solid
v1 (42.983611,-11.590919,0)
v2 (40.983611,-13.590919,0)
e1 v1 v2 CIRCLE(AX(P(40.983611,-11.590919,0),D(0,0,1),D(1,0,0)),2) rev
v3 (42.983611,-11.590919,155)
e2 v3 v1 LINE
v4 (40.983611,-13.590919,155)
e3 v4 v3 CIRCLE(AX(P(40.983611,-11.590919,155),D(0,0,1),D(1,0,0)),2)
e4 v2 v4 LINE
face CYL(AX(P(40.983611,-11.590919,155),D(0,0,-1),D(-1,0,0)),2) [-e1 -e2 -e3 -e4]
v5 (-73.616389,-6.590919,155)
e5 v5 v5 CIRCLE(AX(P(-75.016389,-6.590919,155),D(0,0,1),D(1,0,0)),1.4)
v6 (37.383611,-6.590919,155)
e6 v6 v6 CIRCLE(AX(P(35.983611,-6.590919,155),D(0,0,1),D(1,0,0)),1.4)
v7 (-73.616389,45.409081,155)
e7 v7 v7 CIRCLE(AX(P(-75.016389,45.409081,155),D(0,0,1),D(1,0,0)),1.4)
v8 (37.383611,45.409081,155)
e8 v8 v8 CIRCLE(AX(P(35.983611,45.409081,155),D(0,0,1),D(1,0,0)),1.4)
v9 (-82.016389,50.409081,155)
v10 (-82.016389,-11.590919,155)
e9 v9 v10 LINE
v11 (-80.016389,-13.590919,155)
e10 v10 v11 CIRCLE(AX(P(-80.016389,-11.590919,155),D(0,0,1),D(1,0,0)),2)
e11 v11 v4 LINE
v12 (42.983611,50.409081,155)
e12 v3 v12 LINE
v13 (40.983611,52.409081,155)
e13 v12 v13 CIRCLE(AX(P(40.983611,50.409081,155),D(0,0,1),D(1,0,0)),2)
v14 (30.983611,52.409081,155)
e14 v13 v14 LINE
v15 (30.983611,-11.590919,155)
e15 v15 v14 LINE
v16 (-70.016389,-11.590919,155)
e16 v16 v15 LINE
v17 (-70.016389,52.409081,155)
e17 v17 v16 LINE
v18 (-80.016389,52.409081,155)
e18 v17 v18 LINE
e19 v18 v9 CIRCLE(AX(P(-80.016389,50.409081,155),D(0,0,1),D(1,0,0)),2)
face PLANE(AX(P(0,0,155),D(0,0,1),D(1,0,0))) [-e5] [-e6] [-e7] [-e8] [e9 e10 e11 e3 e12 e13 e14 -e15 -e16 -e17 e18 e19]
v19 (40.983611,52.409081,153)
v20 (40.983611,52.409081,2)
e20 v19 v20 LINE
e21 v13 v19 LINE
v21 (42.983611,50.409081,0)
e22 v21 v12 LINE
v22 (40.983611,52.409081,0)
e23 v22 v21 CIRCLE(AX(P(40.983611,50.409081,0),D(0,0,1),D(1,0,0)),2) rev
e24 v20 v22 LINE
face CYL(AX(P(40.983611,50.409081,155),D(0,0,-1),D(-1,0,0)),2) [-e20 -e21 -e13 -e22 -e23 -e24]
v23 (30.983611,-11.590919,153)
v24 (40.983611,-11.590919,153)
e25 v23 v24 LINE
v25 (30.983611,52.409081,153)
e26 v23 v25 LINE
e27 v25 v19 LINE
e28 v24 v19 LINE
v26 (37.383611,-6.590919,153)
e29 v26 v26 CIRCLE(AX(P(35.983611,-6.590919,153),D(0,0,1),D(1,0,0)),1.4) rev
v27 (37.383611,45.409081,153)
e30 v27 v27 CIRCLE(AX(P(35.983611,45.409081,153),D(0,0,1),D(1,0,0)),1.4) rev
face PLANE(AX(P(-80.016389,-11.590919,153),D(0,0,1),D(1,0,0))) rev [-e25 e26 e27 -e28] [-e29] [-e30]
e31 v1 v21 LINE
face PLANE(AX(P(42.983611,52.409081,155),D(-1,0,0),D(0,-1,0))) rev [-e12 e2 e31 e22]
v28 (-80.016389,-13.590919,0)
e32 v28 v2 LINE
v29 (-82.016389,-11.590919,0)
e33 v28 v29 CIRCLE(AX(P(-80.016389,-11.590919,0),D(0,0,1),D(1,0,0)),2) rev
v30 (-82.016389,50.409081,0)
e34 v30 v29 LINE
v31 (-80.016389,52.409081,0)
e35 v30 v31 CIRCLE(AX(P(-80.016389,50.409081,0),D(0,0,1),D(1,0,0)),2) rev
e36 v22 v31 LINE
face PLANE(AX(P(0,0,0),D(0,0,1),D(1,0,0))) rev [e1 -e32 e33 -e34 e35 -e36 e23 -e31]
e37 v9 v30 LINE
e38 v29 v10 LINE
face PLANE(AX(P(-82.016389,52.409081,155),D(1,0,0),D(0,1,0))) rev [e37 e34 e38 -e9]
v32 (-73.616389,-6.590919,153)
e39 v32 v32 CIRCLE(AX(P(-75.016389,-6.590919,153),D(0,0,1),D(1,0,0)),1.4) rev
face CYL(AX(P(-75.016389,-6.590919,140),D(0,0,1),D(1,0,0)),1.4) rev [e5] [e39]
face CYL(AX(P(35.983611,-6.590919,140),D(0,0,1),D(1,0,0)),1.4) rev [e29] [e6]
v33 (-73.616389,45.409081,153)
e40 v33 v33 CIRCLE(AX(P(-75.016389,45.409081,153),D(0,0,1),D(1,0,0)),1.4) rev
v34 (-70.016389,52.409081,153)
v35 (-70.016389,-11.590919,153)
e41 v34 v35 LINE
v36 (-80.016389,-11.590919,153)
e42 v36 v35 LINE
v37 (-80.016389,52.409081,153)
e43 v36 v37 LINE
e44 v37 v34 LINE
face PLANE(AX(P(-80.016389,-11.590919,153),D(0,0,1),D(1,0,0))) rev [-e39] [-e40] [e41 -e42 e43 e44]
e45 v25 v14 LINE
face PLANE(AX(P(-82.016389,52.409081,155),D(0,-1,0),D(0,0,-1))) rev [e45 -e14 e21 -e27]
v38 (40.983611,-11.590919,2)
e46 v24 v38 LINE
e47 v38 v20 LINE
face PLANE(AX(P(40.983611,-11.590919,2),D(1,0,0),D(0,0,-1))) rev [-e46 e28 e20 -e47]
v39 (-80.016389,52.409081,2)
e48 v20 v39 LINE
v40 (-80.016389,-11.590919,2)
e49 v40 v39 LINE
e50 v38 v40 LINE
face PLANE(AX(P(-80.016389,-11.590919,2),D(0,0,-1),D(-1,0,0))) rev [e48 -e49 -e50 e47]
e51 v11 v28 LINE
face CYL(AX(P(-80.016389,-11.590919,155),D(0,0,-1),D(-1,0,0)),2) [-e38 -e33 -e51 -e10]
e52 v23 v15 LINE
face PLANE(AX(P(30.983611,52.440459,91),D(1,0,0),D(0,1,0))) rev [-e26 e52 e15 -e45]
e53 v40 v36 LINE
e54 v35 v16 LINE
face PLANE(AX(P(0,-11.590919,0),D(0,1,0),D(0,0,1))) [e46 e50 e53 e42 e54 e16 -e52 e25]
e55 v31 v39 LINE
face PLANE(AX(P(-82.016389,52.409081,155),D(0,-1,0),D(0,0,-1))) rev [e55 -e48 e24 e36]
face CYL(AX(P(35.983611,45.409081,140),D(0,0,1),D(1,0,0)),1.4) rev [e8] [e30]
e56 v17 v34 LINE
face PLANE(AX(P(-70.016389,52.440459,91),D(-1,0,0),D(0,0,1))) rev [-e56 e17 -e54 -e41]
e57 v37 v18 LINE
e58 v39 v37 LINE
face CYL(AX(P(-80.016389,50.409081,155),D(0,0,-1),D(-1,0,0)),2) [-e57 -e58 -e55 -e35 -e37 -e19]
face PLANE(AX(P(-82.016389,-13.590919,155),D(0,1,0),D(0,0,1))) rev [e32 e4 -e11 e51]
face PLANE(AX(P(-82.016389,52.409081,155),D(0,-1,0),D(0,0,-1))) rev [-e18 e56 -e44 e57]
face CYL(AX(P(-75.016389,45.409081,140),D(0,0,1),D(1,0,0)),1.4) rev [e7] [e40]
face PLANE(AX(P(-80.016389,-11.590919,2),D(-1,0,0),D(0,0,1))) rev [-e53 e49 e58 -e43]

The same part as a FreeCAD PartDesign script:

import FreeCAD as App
import Part
import Sketcher


def edges_at(feature, points):
    """Names of the edges that pass closest to the given points."""
    edges = feature.Shape.Edges
    near = lambda p: min(range(len(edges)), key=lambda i: edges[i].distToShape(Part.Vertex(*p))[0])
    return sorted({f"Edge{near(p) + 1}" for p in points})

doc = App.newDocument("Part")
params = doc.addObject("Spreadsheet::Sheet", "Params")
for row, (alias, value) in enumerate([
    ("sketch1_width", "125 mm"),
    ("sketch1_height", "66 mm"),
    ("pad1_length", "155 mm"),
    ("fillet_radius", "2 mm"),
    ("sketch2_diameter", "2.8 mm"),
    ("pocket1_length", "15 mm"),
    ("sketch3_width", "121 mm"),
    ("sketch3_height", "151 mm"),
    ("pocket2_length", "64 mm"),
    ("sketch4_width", "101 mm"),
    ("pocket3_length", "64 mm"),
], start=1):
    params.set(f"A{row}", alias)
    params.set(f"B{row}", "=" + value)
    params.setAlias(f"B{row}", alias)

body = doc.addObject("PartDesign::Body", "Body")

sketch1 = body.newObject("Sketcher::SketchObject", "Sketch")
sketch1.AttachmentSupport = (doc.getObject("XY_Plane"), [""])
sketch1.MapMode = "FlatFace"
sketch1.addGeometry(Part.LineSegment(App.Vector(-82, 52, 0), App.Vector(-82, -14, 0)), False)
sketch1.addGeometry(Part.LineSegment(App.Vector(-82, -14, 0), App.Vector(43, -14, 0)), False)
sketch1.addGeometry(Part.LineSegment(App.Vector(43, -14, 0), App.Vector(43, 52, 0)), False)
sketch1.addGeometry(Part.LineSegment(App.Vector(43, 52, 0), App.Vector(-82, 52, 0)), False)
sketch1.addConstraint(Sketcher.Constraint("Coincident", 0, 2, 1, 1))
sketch1.addConstraint(Sketcher.Constraint("Coincident", 1, 2, 2, 1))
sketch1.addConstraint(Sketcher.Constraint("Coincident", 2, 2, 3, 1))
sketch1.addConstraint(Sketcher.Constraint("Coincident", 3, 2, 0, 1))
sketch1.addConstraint(Sketcher.Constraint("Vertical", 0))
sketch1.addConstraint(Sketcher.Constraint("Horizontal", 1))
sketch1.addConstraint(Sketcher.Constraint("Vertical", 2))
sketch1.addConstraint(Sketcher.Constraint("Horizontal", 3))
sketch1.addConstraint(Sketcher.Constraint("DistanceX", 1, 1, 1, 2, 125.0))
sketch1.addConstraint(Sketcher.Constraint("DistanceY", 0, 2, 0, 1, 66.0))
sketch1.addConstraint(Sketcher.Constraint("DistanceX", 0, 2, -1, 1, 82.016389))
sketch1.addConstraint(Sketcher.Constraint("DistanceY", 0, 2, -1, 1, 13.590919))
sketch1.setExpression("Constraints[8]", "Params.sketch1_width")
sketch1.setExpression("Constraints[9]", "Params.sketch1_height")
pad1 = body.newObject("PartDesign::Pad", "Pad")
pad1.Profile = sketch1
pad1.setExpression("Length", "Params.pad1_length")
doc.recompute()

fillet = body.newObject("PartDesign::Fillet", "Fillet")
fillet.Base = (pad1, edges_at(pad1, [
    (-82.016, 52.409, 77.5),
    (42.984, 52.409, 77.5),
    (42.984, -13.591, 77.5),
    (-82.016, -13.591, 77.5),
]))
fillet.setExpression("Radius", "Params.fillet_radius")

sketch2 = body.newObject("Sketcher::SketchObject", "Sketch001")
sketch2.AttachmentSupport = (doc.getObject("XY_Plane"), [""])
sketch2.MapMode = "FlatFace"
sketch2.AttachmentOffset = App.Placement(App.Vector(0, 0, 155), App.Rotation())
sketch2.addGeometry(Part.Circle(App.Vector(-75, 45.4, 0), App.Vector(0, 0, 1), 1.4), False)
sketch2.addGeometry(Part.Circle(App.Vector(-75, -6.6, 0), App.Vector(0, 0, 1), 1.4), False)
sketch2.addGeometry(Part.Circle(App.Vector(36, -6.6, 0), App.Vector(0, 0, 1), 1.4), False)
sketch2.addGeometry(Part.Circle(App.Vector(36, 45.4, 0), App.Vector(0, 0, 1), 1.4), False)
sketch2.addConstraint(Sketcher.Constraint("Equal", 0, 1))
sketch2.addConstraint(Sketcher.Constraint("Equal", 1, 2))
sketch2.addConstraint(Sketcher.Constraint("Equal", 2, 3))
sketch2.addConstraint(Sketcher.Constraint("Horizontal", 1, 3, 2, 3))
sketch2.addConstraint(Sketcher.Constraint("Horizontal", 0, 3, 3, 3))
sketch2.addConstraint(Sketcher.Constraint("Vertical", 0, 3, 1, 3))
sketch2.addConstraint(Sketcher.Constraint("Vertical", 2, 3, 3, 3))
sketch2.addConstraint(Sketcher.Constraint("Diameter", 0, 2.8))
sketch2.addConstraint(Sketcher.Constraint("DistanceY", 1, 3, 0, 3, 52.0))
sketch2.addConstraint(Sketcher.Constraint("DistanceX", 1, 3, 2, 3, 111.0))
sketch2.addConstraint(Sketcher.Constraint("DistanceX", 0, 3, -1, 1, 75.016389))
sketch2.addConstraint(Sketcher.Constraint("DistanceY", -1, 1, 0, 3, 45.409081))
sketch2.setExpression("Constraints[7]", "Params.sketch2_diameter")
pocket1 = body.newObject("PartDesign::Pocket", "Pocket")
pocket1.Profile = sketch2
pocket1.setExpression("Length", "Params.pocket1_length")

sketch3 = body.newObject("Sketcher::SketchObject", "Sketch002")
sketch3.AttachmentSupport = (doc.getObject("XZ_Plane"), [""])
sketch3.MapMode = "FlatFace"
sketch3.AttachmentOffset = App.Placement(App.Vector(0, 0, -52.409081), App.Rotation())
sketch3.addGeometry(Part.LineSegment(App.Vector(-80, 2, 0), App.Vector(-80, 153, 0)), False)
sketch3.addGeometry(Part.LineSegment(App.Vector(-80, 153, 0), App.Vector(41, 153, 0)), False)
sketch3.addGeometry(Part.LineSegment(App.Vector(41, 153, 0), App.Vector(41, 2, 0)), False)
sketch3.addGeometry(Part.LineSegment(App.Vector(41, 2, 0), App.Vector(-80, 2, 0)), False)
sketch3.addConstraint(Sketcher.Constraint("Coincident", 0, 2, 1, 1))
sketch3.addConstraint(Sketcher.Constraint("Coincident", 1, 2, 2, 1))
sketch3.addConstraint(Sketcher.Constraint("Coincident", 2, 2, 3, 1))
sketch3.addConstraint(Sketcher.Constraint("Coincident", 3, 2, 0, 1))
sketch3.addConstraint(Sketcher.Constraint("Vertical", 0))
sketch3.addConstraint(Sketcher.Constraint("Horizontal", 1))
sketch3.addConstraint(Sketcher.Constraint("Vertical", 2))
sketch3.addConstraint(Sketcher.Constraint("Horizontal", 3))
sketch3.addConstraint(Sketcher.Constraint("DistanceX", 1, 1, 1, 2, 121.0))
sketch3.addConstraint(Sketcher.Constraint("DistanceY", 0, 1, 0, 2, 151.0))
sketch3.addConstraint(Sketcher.Constraint("DistanceY", -1, 1, 0, 2, 153.0))
sketch3.addConstraint(Sketcher.Constraint("DistanceX", 0, 2, -1, 1, 80.016389))
sketch3.setExpression("Constraints[8]", "Params.sketch3_width")
sketch3.setExpression("Constraints[9]", "Params.sketch3_height")
pocket2 = body.newObject("PartDesign::Pocket", "Pocket001")
pocket2.Profile = sketch3
pocket2.setExpression("Length", "Params.pocket2_length")
pocket2.Reversed = True

sketch4 = body.newObject("Sketcher::SketchObject", "Sketch003")
sketch4.AttachmentSupport = (doc.getObject("XY_Plane"), [""])
sketch4.MapMode = "FlatFace"
sketch4.AttachmentOffset = App.Placement(App.Vector(0, 0, 155), App.Rotation())
sketch4.addGeometry(Part.LineSegment(App.Vector(-70, 52, 0), App.Vector(-70, -12, 0)), False)
sketch4.addGeometry(Part.LineSegment(App.Vector(-70, -12, 0), App.Vector(31, -12, 0)), False)
sketch4.addGeometry(Part.LineSegment(App.Vector(31, -12, 0), App.Vector(31, 52, 0)), False)
sketch4.addGeometry(Part.LineSegment(App.Vector(31, 52, 0), App.Vector(-70, 52, 0)), False)
sketch4.addConstraint(Sketcher.Constraint("Coincident", 0, 2, 1, 1))
sketch4.addConstraint(Sketcher.Constraint("Coincident", 1, 2, 2, 1))
sketch4.addConstraint(Sketcher.Constraint("Coincident", 2, 2, 3, 1))
sketch4.addConstraint(Sketcher.Constraint("Coincident", 3, 2, 0, 1))
sketch4.addConstraint(Sketcher.Constraint("Vertical", 0))
sketch4.addConstraint(Sketcher.Constraint("Horizontal", 1))
sketch4.addConstraint(Sketcher.Constraint("Vertical", 2))
sketch4.addConstraint(Sketcher.Constraint("Horizontal", 3))
sketch4.addConstraint(Sketcher.Constraint("DistanceX", 1, 1, 1, 2, 101.0))
sketch4.addConstraint(Sketcher.Constraint("DistanceY", 0, 2, 0, 1, 64.031378))
sketch4.addConstraint(Sketcher.Constraint("DistanceX", 0, 2, -1, 1, 70.016389))
sketch4.addConstraint(Sketcher.Constraint("DistanceY", 0, 2, -1, 1, 11.590919))
sketch4.setExpression("Constraints[8]", "Params.sketch4_width")
pocket3 = body.newObject("PartDesign::Pocket", "Pocket002")
pocket3.Profile = sketch4
pocket3.setExpression("Length", "Params.pocket3_length")

doc.recompute()
